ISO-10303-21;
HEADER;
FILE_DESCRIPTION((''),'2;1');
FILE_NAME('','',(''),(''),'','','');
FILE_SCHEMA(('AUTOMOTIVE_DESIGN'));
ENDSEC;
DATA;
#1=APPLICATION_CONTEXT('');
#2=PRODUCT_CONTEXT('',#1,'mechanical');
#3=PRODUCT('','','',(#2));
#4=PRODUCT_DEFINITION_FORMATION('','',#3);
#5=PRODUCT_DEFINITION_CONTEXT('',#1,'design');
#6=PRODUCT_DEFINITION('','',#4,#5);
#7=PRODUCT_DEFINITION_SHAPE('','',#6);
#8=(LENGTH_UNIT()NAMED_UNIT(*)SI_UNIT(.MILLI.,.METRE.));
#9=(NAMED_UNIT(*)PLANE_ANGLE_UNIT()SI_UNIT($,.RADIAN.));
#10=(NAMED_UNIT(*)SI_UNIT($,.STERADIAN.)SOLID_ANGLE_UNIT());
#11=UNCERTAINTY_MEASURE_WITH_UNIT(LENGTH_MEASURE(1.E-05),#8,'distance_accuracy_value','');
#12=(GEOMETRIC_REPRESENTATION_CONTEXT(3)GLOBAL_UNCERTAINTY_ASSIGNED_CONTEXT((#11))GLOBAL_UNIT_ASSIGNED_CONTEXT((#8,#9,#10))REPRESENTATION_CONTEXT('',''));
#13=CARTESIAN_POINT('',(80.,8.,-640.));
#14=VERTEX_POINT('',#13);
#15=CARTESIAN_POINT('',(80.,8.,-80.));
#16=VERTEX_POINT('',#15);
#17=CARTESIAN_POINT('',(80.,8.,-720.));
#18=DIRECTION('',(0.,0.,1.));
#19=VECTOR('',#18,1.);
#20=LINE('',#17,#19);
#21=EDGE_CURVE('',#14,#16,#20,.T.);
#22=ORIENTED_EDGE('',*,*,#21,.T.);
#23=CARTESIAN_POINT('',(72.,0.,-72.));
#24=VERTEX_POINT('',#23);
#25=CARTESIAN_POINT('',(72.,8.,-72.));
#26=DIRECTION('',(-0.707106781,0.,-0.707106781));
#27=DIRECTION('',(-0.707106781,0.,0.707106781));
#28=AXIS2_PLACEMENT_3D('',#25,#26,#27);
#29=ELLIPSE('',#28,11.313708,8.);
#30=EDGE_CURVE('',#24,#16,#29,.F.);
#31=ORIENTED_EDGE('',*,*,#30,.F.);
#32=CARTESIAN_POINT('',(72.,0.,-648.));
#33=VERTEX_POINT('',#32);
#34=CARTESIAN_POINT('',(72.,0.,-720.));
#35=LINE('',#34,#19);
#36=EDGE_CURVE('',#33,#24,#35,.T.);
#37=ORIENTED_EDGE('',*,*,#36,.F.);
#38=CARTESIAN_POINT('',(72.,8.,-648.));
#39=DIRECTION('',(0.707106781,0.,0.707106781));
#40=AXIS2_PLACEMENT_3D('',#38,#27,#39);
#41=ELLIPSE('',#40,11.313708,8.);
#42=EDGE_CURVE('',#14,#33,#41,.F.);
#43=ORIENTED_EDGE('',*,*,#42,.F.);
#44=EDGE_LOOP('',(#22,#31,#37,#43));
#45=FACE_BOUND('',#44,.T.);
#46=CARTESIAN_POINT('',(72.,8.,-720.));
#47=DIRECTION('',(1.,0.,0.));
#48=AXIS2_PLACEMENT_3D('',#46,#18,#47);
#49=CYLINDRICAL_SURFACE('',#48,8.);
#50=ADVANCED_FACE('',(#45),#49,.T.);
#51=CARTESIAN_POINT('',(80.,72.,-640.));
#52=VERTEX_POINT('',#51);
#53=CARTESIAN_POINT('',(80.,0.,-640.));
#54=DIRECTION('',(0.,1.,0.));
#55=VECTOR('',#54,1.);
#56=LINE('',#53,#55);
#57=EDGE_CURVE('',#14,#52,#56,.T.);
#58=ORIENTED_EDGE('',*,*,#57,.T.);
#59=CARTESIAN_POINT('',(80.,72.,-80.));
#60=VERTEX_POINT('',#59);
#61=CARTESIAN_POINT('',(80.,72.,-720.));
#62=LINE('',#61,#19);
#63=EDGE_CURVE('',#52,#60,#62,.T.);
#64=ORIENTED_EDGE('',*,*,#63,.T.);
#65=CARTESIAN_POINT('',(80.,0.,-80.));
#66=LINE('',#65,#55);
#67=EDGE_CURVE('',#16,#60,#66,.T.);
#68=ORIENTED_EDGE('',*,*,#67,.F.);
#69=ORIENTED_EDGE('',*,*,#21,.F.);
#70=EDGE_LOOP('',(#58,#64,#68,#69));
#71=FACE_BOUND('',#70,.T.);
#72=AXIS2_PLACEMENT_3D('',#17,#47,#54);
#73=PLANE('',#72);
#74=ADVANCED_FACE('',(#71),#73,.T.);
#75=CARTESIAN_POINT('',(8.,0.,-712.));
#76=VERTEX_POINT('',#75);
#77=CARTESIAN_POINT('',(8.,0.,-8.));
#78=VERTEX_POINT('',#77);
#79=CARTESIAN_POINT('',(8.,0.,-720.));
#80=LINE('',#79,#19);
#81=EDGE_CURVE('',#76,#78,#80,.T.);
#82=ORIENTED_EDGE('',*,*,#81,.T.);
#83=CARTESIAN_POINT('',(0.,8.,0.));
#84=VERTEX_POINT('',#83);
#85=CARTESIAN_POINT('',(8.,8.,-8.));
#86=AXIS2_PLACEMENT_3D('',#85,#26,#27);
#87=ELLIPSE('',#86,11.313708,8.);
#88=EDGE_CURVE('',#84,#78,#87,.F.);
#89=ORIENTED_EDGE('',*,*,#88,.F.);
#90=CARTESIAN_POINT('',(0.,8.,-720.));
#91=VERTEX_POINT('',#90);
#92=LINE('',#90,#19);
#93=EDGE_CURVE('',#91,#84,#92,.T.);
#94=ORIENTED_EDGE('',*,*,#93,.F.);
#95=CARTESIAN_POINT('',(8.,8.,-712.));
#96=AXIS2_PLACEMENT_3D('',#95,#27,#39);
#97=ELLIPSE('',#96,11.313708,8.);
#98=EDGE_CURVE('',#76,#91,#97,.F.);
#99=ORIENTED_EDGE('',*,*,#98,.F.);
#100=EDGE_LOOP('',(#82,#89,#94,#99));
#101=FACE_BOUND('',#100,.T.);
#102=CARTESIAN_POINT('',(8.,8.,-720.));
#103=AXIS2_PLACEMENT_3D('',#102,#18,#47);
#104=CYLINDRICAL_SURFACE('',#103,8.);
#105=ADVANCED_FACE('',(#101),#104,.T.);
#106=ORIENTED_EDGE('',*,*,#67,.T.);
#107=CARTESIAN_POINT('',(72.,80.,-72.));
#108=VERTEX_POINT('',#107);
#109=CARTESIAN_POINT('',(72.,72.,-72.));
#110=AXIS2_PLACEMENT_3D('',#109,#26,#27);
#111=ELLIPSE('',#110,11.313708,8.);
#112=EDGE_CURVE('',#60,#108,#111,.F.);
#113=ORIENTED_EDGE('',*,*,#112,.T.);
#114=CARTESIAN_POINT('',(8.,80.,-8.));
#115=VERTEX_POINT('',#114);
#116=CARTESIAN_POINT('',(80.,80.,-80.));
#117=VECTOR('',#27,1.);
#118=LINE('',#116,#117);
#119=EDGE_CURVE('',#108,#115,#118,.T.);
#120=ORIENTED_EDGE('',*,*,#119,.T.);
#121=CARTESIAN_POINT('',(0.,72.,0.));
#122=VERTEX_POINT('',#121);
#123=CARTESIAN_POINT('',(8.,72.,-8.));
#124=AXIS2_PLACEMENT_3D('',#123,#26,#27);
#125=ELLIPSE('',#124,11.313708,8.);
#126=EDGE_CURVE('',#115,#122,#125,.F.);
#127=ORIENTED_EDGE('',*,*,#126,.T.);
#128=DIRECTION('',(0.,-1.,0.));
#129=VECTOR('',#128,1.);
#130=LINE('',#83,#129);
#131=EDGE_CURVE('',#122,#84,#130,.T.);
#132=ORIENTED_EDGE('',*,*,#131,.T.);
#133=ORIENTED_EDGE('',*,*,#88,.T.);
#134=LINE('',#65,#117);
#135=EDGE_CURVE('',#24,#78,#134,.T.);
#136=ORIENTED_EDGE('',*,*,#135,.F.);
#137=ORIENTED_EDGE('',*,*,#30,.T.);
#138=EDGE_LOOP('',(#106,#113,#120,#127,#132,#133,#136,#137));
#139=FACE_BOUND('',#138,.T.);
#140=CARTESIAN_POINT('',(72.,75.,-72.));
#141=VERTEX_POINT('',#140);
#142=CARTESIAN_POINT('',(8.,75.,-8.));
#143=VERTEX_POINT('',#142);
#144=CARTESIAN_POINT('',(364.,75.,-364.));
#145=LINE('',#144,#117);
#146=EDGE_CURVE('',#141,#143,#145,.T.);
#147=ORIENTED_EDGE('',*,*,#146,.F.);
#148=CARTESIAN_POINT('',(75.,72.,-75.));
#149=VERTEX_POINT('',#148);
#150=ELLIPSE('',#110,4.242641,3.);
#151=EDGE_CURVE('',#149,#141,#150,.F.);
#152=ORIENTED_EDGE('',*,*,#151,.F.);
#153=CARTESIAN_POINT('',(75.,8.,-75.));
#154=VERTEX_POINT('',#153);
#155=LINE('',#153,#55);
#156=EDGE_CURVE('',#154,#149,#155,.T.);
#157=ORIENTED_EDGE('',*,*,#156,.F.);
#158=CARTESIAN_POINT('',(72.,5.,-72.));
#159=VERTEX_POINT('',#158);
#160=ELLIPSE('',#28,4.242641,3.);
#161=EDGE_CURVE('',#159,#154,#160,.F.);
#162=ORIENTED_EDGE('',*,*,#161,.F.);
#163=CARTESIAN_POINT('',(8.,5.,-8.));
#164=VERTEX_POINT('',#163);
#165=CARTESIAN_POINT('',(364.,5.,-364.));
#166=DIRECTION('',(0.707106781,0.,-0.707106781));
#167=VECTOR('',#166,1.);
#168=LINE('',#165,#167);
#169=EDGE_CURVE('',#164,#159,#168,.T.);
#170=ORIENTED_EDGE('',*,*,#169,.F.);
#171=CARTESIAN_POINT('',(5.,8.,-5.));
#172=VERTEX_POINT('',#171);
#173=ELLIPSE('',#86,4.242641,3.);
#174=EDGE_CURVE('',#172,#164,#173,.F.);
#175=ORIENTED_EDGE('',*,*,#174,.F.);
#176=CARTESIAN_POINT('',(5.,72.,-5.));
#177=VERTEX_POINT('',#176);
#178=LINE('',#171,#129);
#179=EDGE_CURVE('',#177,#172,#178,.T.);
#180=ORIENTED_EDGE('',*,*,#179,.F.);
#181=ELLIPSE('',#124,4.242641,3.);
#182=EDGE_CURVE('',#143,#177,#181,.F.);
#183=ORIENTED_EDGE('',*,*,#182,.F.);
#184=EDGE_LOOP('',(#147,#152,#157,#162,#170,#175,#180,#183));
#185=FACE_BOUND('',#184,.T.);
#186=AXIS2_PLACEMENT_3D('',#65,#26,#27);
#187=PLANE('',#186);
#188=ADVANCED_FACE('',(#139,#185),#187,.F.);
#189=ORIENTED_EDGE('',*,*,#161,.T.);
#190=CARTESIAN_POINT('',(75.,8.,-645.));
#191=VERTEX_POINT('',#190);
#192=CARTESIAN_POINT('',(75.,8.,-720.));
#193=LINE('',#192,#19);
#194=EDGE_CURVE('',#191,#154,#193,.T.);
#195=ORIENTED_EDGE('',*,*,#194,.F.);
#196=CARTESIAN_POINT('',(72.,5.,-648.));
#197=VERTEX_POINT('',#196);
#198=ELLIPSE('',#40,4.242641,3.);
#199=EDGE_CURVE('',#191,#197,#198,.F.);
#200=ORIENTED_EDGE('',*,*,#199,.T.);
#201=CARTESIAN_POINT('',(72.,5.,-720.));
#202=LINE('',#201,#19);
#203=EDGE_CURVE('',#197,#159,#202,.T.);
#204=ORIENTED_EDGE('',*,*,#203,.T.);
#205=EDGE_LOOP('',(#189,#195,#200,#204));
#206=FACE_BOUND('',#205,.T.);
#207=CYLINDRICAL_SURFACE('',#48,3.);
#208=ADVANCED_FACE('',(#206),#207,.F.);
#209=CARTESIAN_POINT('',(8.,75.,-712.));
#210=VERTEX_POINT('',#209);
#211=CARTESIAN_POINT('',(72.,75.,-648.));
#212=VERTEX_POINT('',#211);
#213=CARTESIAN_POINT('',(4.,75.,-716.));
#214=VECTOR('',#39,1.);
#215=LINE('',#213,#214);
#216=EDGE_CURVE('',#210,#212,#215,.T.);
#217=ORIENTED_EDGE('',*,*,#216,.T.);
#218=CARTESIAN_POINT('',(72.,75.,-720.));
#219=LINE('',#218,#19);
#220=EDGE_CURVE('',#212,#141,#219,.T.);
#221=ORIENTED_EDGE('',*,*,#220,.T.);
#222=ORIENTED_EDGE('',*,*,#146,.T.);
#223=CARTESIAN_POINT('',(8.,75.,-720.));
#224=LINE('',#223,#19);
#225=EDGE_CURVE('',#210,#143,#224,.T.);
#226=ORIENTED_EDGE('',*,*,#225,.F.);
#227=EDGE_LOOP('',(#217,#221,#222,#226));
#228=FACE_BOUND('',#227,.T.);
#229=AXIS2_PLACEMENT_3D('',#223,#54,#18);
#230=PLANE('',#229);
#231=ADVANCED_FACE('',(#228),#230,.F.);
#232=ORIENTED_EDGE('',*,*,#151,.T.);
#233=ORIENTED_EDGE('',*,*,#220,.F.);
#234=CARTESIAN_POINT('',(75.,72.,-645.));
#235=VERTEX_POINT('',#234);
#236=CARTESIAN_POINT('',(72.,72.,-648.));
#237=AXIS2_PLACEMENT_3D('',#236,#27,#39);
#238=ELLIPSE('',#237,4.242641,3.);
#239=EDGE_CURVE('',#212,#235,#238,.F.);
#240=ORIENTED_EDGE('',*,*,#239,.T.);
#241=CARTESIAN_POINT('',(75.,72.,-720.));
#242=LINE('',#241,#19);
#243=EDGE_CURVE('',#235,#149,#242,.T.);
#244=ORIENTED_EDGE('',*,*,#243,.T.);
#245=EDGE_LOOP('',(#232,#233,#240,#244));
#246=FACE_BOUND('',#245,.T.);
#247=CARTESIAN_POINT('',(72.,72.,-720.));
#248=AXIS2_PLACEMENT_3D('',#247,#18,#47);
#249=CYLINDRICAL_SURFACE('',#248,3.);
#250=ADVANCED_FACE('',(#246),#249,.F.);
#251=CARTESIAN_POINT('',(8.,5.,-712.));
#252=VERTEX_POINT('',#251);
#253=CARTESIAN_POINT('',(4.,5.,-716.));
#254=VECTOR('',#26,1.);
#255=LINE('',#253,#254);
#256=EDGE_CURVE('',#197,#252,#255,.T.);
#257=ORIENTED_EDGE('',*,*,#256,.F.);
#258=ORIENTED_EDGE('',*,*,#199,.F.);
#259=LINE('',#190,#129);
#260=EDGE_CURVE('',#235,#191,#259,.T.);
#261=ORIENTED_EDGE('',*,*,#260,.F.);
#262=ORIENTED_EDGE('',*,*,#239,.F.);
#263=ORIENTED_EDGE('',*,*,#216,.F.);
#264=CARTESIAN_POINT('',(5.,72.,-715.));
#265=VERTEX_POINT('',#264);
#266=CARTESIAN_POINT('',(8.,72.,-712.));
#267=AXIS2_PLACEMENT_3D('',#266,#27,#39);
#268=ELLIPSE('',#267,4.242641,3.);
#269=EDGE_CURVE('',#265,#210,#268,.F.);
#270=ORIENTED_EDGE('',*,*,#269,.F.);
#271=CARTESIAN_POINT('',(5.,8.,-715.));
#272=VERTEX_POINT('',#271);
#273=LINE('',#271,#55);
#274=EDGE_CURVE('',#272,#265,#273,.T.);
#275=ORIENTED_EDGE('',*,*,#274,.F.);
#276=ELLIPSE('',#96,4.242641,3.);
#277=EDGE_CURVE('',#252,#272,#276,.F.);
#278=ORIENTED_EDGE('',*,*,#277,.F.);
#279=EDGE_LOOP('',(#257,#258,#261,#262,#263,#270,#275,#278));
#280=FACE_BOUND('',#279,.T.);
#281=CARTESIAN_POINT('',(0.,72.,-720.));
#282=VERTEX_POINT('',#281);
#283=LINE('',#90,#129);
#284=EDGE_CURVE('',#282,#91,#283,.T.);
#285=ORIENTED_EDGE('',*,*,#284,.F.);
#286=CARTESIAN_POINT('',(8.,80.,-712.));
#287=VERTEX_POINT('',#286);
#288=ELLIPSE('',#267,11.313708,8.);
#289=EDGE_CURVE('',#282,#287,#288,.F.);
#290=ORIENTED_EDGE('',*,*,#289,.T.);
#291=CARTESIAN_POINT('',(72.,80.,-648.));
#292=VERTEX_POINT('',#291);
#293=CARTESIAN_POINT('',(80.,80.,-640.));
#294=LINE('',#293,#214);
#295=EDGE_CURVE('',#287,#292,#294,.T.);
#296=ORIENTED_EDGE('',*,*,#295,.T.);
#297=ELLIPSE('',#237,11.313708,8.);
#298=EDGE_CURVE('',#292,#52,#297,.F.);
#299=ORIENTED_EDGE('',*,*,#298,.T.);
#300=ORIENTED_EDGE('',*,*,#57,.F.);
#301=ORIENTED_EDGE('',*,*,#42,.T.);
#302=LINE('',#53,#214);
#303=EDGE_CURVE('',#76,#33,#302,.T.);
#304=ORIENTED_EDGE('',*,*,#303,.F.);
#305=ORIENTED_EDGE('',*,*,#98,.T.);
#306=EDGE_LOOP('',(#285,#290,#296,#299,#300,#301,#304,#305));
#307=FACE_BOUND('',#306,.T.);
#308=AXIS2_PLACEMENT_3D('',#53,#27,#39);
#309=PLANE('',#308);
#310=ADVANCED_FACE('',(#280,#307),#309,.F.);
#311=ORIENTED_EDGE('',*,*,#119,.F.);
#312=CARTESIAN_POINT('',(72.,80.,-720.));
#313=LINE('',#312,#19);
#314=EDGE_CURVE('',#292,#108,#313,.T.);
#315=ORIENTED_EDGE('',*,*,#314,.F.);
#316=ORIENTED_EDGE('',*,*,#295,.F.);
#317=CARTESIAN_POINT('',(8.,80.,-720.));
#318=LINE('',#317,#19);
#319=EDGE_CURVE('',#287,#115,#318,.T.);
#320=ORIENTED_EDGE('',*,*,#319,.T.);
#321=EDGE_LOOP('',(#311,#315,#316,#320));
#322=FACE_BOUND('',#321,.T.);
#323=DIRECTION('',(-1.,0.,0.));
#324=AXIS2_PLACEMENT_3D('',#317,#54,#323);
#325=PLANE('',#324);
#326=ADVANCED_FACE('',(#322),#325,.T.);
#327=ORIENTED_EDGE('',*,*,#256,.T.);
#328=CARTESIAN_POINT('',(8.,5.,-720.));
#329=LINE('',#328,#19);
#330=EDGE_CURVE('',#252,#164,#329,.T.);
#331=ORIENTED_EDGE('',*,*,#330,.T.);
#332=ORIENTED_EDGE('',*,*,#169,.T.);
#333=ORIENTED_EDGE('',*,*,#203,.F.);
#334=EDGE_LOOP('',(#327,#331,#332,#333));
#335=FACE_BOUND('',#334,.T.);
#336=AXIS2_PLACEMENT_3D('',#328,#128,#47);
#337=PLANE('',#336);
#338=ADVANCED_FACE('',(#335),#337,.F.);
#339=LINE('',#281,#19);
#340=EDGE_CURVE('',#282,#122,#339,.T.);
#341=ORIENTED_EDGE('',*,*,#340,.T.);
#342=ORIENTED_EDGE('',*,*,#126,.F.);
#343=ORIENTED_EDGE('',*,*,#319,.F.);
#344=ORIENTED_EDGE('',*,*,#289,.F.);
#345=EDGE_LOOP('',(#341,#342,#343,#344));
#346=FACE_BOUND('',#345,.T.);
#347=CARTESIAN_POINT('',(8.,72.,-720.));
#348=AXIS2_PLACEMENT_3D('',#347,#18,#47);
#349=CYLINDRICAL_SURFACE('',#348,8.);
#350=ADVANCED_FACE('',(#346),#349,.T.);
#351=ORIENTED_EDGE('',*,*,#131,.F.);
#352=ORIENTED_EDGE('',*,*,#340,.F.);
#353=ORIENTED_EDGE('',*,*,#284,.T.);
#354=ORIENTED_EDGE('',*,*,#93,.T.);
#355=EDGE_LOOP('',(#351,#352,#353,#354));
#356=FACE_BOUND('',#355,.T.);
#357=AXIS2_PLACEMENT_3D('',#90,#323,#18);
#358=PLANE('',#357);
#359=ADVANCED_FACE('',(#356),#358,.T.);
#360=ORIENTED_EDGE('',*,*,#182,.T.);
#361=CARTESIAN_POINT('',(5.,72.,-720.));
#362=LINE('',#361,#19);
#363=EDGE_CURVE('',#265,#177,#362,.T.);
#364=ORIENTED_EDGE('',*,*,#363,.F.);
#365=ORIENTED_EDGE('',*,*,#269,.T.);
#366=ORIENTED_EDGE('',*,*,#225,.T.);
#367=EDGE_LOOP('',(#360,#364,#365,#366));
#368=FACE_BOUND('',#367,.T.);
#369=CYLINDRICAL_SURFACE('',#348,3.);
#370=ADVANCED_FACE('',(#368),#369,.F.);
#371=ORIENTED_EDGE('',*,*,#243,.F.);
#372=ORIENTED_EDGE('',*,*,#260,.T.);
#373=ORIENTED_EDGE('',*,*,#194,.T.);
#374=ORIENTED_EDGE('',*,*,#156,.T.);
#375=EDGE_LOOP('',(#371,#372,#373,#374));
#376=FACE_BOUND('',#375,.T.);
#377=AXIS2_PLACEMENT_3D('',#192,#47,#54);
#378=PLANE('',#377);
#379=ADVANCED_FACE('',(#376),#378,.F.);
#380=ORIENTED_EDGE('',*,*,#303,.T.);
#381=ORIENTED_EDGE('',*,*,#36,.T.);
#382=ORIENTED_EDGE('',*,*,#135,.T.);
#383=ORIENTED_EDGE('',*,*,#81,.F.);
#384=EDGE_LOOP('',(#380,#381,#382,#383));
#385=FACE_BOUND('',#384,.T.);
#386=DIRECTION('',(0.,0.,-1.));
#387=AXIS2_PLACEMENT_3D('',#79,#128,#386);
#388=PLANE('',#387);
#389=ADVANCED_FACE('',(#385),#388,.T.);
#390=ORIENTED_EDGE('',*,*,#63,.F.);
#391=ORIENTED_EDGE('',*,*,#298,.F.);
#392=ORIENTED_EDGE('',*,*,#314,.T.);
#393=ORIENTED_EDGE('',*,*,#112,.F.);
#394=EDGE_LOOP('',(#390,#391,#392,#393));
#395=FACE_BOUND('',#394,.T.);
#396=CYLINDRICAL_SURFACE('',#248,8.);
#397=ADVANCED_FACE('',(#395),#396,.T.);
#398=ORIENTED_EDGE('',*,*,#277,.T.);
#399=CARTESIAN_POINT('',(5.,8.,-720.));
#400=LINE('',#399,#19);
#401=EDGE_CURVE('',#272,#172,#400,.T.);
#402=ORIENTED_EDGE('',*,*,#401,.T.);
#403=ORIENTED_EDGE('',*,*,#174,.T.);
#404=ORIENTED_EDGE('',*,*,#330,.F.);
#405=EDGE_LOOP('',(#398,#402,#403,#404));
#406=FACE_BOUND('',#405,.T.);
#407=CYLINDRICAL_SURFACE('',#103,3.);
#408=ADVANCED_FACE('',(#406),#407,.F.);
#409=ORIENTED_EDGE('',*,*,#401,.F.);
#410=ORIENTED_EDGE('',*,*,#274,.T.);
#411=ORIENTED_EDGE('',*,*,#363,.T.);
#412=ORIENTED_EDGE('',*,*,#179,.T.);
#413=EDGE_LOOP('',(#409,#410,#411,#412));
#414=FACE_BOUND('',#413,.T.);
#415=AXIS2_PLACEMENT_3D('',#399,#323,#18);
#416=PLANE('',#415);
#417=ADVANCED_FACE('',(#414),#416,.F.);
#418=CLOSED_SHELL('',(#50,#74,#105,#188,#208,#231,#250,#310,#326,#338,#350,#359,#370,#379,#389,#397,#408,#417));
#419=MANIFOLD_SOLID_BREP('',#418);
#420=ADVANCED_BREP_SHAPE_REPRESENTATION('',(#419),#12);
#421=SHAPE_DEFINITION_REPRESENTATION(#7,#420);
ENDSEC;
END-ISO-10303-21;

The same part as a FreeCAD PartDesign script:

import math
import FreeCAD as App
import Part
import Sketcher
Q = App.Units.Quantity

doc = App.newDocument("Part")
body = doc.addObject("PartDesign::Body", "Body")

# Sketch on XY plane
sketch1 = body.newObject("Sketcher::SketchObject", "Sketch")
sketch1.AttachmentSupport = (doc.getObject("XY_Plane"), [""])
sketch1.MapMode = "FlatFace"
sketch1.addGeometry(Part.LineSegment(App.Vector(8, 0, 0), App.Vector(72, 0, 0)), False)
sketch1.addGeometry(Part.ArcOfCircle(Part.Circle(App.Vector(72, 8, 0), App.Vector(0, 0, 1), 8), math.radians(-90), math.radians(0)), False)
sketch1.addGeometry(Part.LineSegment(App.Vector(80, 8, 0), App.Vector(80, 72, 0)), False)
sketch1.addGeometry(Part.ArcOfCircle(Part.Circle(App.Vector(72, 72, 0), App.Vector(0, 0, 1), 8), math.radians(0), math.radians(90)), False)
sketch1.addGeometry(Part.LineSegment(App.Vector(72, 80, 0), App.Vector(8, 80, 0)), False)
sketch1.addGeometry(Part.ArcOfCircle(Part.Circle(App.Vector(8, 72, 0), App.Vector(0, 0, 1), 8), math.radians(90), math.radians(180)), False)
sketch1.addGeometry(Part.LineSegment(App.Vector(0, 72, 0), App.Vector(0, 8, 0)), False)
sketch1.addGeometry(Part.ArcOfCircle(Part.Circle(App.Vector(8, 8, 0), App.Vector(0, 0, 1), 8), math.radians(-180), math.radians(-90)), False)
sketch1.addGeometry(Part.ArcOfCircle(Part.Circle(App.Vector(8, 8, 0), App.Vector(0, 0, 1), 3), math.radians(180), math.radians(270)), False)
sketch1.addGeometry(Part.LineSegment(App.Vector(5, 8, 0), App.Vector(5, 72, 0)), False)
sketch1.addGeometry(Part.ArcOfCircle(Part.Circle(App.Vector(8, 72, 0), App.Vector(0, 0, 1), 3), math.radians(90), math.radians(180)), False)
sketch1.addGeometry(Part.LineSegment(App.Vector(8, 75, 0), App.Vector(72, 75, 0)), False)
sketch1.addGeometry(Part.ArcOfCircle(Part.Circle(App.Vector(72, 72, 0), App.Vector(0, 0, 1), 3), math.radians(0), math.radians(90)), False)
sketch1.addGeometry(Part.LineSegment(App.Vector(75, 72, 0), App.Vector(75, 8, 0)), False)
sketch1.addGeometry(Part.ArcOfCircle(Part.Circle(App.Vector(72, 8, 0), App.Vector(0, 0, 1), 3), math.radians(-90), math.radians(0)), False)
sketch1.addGeometry(Part.LineSegment(App.Vector(72, 5, 0), App.Vector(8, 5, 0)), False)
sketch1.addConstraint(Sketcher.Constraint("Tangent", 0, 2, 1, 1))
sketch1.addConstraint(Sketcher.Constraint("Tangent", 1, 2, 2, 1))
sketch1.addConstraint(Sketcher.Constraint("Tangent", 2, 2, 3, 1))
sketch1.addConstraint(Sketcher.Constraint("Tangent", 3, 2, 4, 1))
sketch1.addConstraint(Sketcher.Constraint("Tangent", 4, 2, 5, 1))
sketch1.addConstraint(Sketcher.Constraint("Tangent", 5, 2, 6, 1))
sketch1.addConstraint(Sketcher.Constraint("Tangent", 6, 2, 7, 1))
sketch1.addConstraint(Sketcher.Constraint("Tangent", 7, 2, 0, 1))
sketch1.addConstraint(Sketcher.Constraint("Tangent", 8, 1, 9, 1))
sketch1.addConstraint(Sketcher.Constraint("Tangent", 9, 2, 10, 2))
sketch1.addConstraint(Sketcher.Constraint("Tangent", 10, 1, 11, 1))
sketch1.addConstraint(Sketcher.Constraint("Tangent", 11, 2, 12, 2))
sketch1.addConstraint(Sketcher.Constraint("Tangent", 12, 1, 13, 1))
sketch1.addConstraint(Sketcher.Constraint("Tangent", 13, 2, 14, 2))
sketch1.addConstraint(Sketcher.Constraint("Tangent", 14, 1, 15, 1))
sketch1.addConstraint(Sketcher.Constraint("Tangent", 15, 2, 8, 2))
sketch1.addConstraint(Sketcher.Constraint("Horizontal", 0))
sketch1.addConstraint(Sketcher.Constraint("Vertical", 2))
sketch1.addConstraint(Sketcher.Constraint("Horizontal", 4))
sketch1.addConstraint(Sketcher.Constraint("Vertical", 6))
sketch1.addConstraint(Sketcher.Constraint("Vertical", 9))
sketch1.addConstraint(Sketcher.Constraint("Horizontal", 11))
sketch1.addConstraint(Sketcher.Constraint("Vertical", 13))
sketch1.addConstraint(Sketcher.Constraint("Horizontal", 15))
sketch1.addConstraint(Sketcher.Constraint("Coincident", 8, 3, 7, 3))
sketch1.addConstraint(Sketcher.Constraint("Coincident", 10, 3, 5, 3))
sketch1.addConstraint(Sketcher.Constraint("Coincident", 12, 3, 3, 3))
sketch1.addConstraint(Sketcher.Constraint("Equal", 1, 3))
sketch1.addConstraint(Sketcher.Constraint("Equal", 3, 5))
sketch1.addConstraint(Sketcher.Constraint("Equal", 5, 7))
sketch1.addConstraint(Sketcher.Constraint("Equal", 12, 14))
sketch1.addConstraint(Sketcher.Constraint("PointOnObject", 0, 2, -1))
sketch1.addConstraint(Sketcher.Constraint("PointOnObject", 5, 2, -2))
sketch1.addConstraint(Sketcher.Constraint("Equal", 15, 2))
sketch1.addConstraint(Sketcher.Constraint("Radius", 1, Q("8 mm")))
sketch1.addConstraint(Sketcher.Constraint("Radius", 8, Q("3 mm")))
sketch1.addConstraint(Sketcher.Constraint("DistanceX", 0, 1, 0, 2, Q("64 mm")))
pad1 = body.newObject("PartDesign::Pad", "Pad")
pad1.Profile = sketch1
pad1.Length = 720
pad1.Reversed = True

# Sketch on XZ plane
sketch2 = body.newObject("Sketcher::SketchObject", "Sketch001")
sketch2.AttachmentSupport = (doc.getObject("XZ_Plane"), [""])
sketch2.MapMode = "FlatFace"
sketch2.AttachmentOffset = App.Placement(App.Vector(0, 0, -80), App.Rotation())
sketch2.addGeometry(Part.LineSegment(App.Vector(0, 0, 0), App.Vector(80, 0, 0)), False)
sketch2.addGeometry(Part.LineSegment(App.Vector(80, 0, 0), App.Vector(80, -80, 0)), False)
sketch2.addGeometry(Part.LineSegment(App.Vector(80, -80, 0), App.Vector(0, 0, 0)), False)
sketch2.addGeometry(Part.LineSegment(App.Vector(0, -720, 0), App.Vector(80, -640, 0)), False)
sketch2.addGeometry(Part.LineSegment(App.Vector(80, -640, 0), App.Vector(80, -720, 0)), False)
sketch2.addGeometry(Part.LineSegment(App.Vector(80, -720, 0), App.Vector(0, -720, 0)), False)
sketch2.addConstraint(Sketcher.Constraint("Coincident", 0, 2, 1, 1))
sketch2.addConstraint(Sketcher.Constraint("Coincident", 1, 2, 2, 1))
sketch2.addConstraint(Sketcher.Constraint("Coincident", 2, 2, 0, 1))
sketch2.addConstraint(Sketcher.Constraint("Coincident", 3, 2, 4, 1))
sketch2.addConstraint(Sketcher.Constraint("Coincident", 4, 2, 5, 1))
sketch2.addConstraint(Sketcher.Constraint("Coincident", 5, 2, 3, 1))
sketch2.addConstraint(Sketcher.Constraint("Horizontal", 0))
sketch2.addConstraint(Sketcher.Constraint("Vertical", 1))
sketch2.addConstraint(Sketcher.Constraint("Vertical", 4))
sketch2.addConstraint(Sketcher.Constraint("Horizontal", 5))
sketch2.addConstraint(Sketcher.Constraint("Coincident", 2, 2, -1, 1))
sketch2.addConstraint(Sketcher.Constraint("PointOnObject", 5, 2, -2))
sketch2.addConstraint(Sketcher.Constraint("Perpendicular", 2, 3))
sketch2.addConstraint(Sketcher.Constraint("Vertical", 1, 2, 3, 2))
sketch2.addConstraint(Sketcher.Constraint("Equal", 5, 1))
sketch2.addConstraint(Sketcher.Constraint("DistanceX", 0, 1, 0, 2, Q("80 mm")))
sketch2.addConstraint(Sketcher.Constraint("DistanceY", 3, 2, -1, 1, Q("640 mm")))
pocket1 = body.newObject("PartDesign::Pocket", "Pocket")
pocket1.Profile = sketch2
pocket1.Type = "ThroughAll"
pocket1.Reversed = True

doc.recompute()
